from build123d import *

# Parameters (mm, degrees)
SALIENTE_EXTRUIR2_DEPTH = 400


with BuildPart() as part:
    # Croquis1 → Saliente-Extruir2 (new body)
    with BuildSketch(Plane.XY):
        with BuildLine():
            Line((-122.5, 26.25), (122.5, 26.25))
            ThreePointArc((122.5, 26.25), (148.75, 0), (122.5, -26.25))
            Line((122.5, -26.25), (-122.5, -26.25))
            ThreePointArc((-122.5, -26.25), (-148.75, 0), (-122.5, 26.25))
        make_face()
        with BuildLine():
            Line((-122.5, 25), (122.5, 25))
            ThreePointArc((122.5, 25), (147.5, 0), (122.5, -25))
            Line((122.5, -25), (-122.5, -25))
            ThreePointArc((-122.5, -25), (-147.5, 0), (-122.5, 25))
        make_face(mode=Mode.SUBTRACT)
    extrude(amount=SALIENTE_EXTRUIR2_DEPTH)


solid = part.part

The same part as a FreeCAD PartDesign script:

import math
import FreeCAD as App
import Part
import Sketcher
from FreeCAD import Vector
Q = App.Units.Quantity

doc = App.newDocument("Part")
body = doc.addObject("PartDesign::Body", "Body")

# Sketch on XY plane
sketch1 = body.newObject("Sketcher::SketchObject", "Sketch")
sketch1.AttachmentSupport = (doc.getObject("XY_Plane"), [""])
sketch1.MapMode = "FlatFace"
sketch1.addGeometry(Part.LineSegment(Vector(122, 26, 0), Vector(-122, 26, 0)), False)
sketch1.addGeometry(Part.ArcOfCircle(Part.Circle(Vector(-122, 0, 0), Vector(0, 0, 1), 26), math.radians(90), math.radians(270)), False)
sketch1.addGeometry(Part.LineSegment(Vector(-122, -26, 0), Vector(122, -26, 0)), False)
sketch1.addGeometry(Part.ArcOfCircle(Part.Circle(Vector(122, 0, 0), Vector(0, 0, 1), 26), math.radians(-90), math.radians(90)), False)
sketch1.addGeometry(Part.LineSegment(Vector(-122, 25, 0), Vector(122, 25, 0)), False)
sketch1.addGeometry(Part.ArcOfCircle(Part.Circle(Vector(122, 0, 0), Vector(0, 0, 1), 25), math.radians(-90), math.radians(90)), False)
sketch1.addGeometry(Part.LineSegment(Vector(122, -25, 0), Vector(-122, -25, 0)), False)
sketch1.addGeometry(Part.ArcOfCircle(Part.Circle(Vector(-122, 0, 0), Vector(0, 0, 1), 25), math.radians(90), math.radians(270)), False)
sketch1.addConstraint(Sketcher.Constraint("Tangent", 0, 2, 1, 1))
sketch1.addConstraint(Sketcher.Constraint("Tangent", 1, 2, 2, 1))
sketch1.addConstraint(Sketcher.Constraint("Tangent", 2, 2, 3, 1))
sketch1.addConstraint(Sketcher.Constraint("Tangent", 3, 2, 0, 1))
sketch1.addConstraint(Sketcher.Constraint("Tangent", 4, 2, 5, 2))
sketch1.addConstraint(Sketcher.Constraint("Tangent", 5, 1, 6, 1))
sketch1.addConstraint(Sketcher.Constraint("Tangent", 6, 2, 7, 2))
sketch1.addConstraint(Sketcher.Constraint("Tangent", 7, 1, 4, 1))
sketch1.addConstraint(Sketcher.Constraint("Horizontal", 0))
sketch1.addConstraint(Sketcher.Constraint("Horizontal", 2))
sketch1.addConstraint(Sketcher.Constraint("Horizontal", 4))
sketch1.addConstraint(Sketcher.Constraint("Horizontal", 6))
sketch1.addConstraint(Sketcher.Constraint("Coincident", 5, 3, 3, 3))
sketch1.addConstraint(Sketcher.Constraint("Symmetric", 1, 3, 3, 3, -1, 1))
sketch1.addConstraint(Sketcher.Constraint("Vertical", 7, 3, 0, 2))
sketch1.addConstraint(Sketcher.Constraint("Radius", 5, Q("25 mm")))
sketch1.addConstraint(Sketcher.Constraint("DistanceX", 0, 2, 0, 1, Q("245 mm")))
sketch1.addConstraint(Sketcher.Constraint("Radius", 1, Q("26.25 mm")))
pad1 = body.newObject("PartDesign::Pad", "Pad")
pad1.Profile = sketch1
pad1.Length = 400

doc.recompute()
